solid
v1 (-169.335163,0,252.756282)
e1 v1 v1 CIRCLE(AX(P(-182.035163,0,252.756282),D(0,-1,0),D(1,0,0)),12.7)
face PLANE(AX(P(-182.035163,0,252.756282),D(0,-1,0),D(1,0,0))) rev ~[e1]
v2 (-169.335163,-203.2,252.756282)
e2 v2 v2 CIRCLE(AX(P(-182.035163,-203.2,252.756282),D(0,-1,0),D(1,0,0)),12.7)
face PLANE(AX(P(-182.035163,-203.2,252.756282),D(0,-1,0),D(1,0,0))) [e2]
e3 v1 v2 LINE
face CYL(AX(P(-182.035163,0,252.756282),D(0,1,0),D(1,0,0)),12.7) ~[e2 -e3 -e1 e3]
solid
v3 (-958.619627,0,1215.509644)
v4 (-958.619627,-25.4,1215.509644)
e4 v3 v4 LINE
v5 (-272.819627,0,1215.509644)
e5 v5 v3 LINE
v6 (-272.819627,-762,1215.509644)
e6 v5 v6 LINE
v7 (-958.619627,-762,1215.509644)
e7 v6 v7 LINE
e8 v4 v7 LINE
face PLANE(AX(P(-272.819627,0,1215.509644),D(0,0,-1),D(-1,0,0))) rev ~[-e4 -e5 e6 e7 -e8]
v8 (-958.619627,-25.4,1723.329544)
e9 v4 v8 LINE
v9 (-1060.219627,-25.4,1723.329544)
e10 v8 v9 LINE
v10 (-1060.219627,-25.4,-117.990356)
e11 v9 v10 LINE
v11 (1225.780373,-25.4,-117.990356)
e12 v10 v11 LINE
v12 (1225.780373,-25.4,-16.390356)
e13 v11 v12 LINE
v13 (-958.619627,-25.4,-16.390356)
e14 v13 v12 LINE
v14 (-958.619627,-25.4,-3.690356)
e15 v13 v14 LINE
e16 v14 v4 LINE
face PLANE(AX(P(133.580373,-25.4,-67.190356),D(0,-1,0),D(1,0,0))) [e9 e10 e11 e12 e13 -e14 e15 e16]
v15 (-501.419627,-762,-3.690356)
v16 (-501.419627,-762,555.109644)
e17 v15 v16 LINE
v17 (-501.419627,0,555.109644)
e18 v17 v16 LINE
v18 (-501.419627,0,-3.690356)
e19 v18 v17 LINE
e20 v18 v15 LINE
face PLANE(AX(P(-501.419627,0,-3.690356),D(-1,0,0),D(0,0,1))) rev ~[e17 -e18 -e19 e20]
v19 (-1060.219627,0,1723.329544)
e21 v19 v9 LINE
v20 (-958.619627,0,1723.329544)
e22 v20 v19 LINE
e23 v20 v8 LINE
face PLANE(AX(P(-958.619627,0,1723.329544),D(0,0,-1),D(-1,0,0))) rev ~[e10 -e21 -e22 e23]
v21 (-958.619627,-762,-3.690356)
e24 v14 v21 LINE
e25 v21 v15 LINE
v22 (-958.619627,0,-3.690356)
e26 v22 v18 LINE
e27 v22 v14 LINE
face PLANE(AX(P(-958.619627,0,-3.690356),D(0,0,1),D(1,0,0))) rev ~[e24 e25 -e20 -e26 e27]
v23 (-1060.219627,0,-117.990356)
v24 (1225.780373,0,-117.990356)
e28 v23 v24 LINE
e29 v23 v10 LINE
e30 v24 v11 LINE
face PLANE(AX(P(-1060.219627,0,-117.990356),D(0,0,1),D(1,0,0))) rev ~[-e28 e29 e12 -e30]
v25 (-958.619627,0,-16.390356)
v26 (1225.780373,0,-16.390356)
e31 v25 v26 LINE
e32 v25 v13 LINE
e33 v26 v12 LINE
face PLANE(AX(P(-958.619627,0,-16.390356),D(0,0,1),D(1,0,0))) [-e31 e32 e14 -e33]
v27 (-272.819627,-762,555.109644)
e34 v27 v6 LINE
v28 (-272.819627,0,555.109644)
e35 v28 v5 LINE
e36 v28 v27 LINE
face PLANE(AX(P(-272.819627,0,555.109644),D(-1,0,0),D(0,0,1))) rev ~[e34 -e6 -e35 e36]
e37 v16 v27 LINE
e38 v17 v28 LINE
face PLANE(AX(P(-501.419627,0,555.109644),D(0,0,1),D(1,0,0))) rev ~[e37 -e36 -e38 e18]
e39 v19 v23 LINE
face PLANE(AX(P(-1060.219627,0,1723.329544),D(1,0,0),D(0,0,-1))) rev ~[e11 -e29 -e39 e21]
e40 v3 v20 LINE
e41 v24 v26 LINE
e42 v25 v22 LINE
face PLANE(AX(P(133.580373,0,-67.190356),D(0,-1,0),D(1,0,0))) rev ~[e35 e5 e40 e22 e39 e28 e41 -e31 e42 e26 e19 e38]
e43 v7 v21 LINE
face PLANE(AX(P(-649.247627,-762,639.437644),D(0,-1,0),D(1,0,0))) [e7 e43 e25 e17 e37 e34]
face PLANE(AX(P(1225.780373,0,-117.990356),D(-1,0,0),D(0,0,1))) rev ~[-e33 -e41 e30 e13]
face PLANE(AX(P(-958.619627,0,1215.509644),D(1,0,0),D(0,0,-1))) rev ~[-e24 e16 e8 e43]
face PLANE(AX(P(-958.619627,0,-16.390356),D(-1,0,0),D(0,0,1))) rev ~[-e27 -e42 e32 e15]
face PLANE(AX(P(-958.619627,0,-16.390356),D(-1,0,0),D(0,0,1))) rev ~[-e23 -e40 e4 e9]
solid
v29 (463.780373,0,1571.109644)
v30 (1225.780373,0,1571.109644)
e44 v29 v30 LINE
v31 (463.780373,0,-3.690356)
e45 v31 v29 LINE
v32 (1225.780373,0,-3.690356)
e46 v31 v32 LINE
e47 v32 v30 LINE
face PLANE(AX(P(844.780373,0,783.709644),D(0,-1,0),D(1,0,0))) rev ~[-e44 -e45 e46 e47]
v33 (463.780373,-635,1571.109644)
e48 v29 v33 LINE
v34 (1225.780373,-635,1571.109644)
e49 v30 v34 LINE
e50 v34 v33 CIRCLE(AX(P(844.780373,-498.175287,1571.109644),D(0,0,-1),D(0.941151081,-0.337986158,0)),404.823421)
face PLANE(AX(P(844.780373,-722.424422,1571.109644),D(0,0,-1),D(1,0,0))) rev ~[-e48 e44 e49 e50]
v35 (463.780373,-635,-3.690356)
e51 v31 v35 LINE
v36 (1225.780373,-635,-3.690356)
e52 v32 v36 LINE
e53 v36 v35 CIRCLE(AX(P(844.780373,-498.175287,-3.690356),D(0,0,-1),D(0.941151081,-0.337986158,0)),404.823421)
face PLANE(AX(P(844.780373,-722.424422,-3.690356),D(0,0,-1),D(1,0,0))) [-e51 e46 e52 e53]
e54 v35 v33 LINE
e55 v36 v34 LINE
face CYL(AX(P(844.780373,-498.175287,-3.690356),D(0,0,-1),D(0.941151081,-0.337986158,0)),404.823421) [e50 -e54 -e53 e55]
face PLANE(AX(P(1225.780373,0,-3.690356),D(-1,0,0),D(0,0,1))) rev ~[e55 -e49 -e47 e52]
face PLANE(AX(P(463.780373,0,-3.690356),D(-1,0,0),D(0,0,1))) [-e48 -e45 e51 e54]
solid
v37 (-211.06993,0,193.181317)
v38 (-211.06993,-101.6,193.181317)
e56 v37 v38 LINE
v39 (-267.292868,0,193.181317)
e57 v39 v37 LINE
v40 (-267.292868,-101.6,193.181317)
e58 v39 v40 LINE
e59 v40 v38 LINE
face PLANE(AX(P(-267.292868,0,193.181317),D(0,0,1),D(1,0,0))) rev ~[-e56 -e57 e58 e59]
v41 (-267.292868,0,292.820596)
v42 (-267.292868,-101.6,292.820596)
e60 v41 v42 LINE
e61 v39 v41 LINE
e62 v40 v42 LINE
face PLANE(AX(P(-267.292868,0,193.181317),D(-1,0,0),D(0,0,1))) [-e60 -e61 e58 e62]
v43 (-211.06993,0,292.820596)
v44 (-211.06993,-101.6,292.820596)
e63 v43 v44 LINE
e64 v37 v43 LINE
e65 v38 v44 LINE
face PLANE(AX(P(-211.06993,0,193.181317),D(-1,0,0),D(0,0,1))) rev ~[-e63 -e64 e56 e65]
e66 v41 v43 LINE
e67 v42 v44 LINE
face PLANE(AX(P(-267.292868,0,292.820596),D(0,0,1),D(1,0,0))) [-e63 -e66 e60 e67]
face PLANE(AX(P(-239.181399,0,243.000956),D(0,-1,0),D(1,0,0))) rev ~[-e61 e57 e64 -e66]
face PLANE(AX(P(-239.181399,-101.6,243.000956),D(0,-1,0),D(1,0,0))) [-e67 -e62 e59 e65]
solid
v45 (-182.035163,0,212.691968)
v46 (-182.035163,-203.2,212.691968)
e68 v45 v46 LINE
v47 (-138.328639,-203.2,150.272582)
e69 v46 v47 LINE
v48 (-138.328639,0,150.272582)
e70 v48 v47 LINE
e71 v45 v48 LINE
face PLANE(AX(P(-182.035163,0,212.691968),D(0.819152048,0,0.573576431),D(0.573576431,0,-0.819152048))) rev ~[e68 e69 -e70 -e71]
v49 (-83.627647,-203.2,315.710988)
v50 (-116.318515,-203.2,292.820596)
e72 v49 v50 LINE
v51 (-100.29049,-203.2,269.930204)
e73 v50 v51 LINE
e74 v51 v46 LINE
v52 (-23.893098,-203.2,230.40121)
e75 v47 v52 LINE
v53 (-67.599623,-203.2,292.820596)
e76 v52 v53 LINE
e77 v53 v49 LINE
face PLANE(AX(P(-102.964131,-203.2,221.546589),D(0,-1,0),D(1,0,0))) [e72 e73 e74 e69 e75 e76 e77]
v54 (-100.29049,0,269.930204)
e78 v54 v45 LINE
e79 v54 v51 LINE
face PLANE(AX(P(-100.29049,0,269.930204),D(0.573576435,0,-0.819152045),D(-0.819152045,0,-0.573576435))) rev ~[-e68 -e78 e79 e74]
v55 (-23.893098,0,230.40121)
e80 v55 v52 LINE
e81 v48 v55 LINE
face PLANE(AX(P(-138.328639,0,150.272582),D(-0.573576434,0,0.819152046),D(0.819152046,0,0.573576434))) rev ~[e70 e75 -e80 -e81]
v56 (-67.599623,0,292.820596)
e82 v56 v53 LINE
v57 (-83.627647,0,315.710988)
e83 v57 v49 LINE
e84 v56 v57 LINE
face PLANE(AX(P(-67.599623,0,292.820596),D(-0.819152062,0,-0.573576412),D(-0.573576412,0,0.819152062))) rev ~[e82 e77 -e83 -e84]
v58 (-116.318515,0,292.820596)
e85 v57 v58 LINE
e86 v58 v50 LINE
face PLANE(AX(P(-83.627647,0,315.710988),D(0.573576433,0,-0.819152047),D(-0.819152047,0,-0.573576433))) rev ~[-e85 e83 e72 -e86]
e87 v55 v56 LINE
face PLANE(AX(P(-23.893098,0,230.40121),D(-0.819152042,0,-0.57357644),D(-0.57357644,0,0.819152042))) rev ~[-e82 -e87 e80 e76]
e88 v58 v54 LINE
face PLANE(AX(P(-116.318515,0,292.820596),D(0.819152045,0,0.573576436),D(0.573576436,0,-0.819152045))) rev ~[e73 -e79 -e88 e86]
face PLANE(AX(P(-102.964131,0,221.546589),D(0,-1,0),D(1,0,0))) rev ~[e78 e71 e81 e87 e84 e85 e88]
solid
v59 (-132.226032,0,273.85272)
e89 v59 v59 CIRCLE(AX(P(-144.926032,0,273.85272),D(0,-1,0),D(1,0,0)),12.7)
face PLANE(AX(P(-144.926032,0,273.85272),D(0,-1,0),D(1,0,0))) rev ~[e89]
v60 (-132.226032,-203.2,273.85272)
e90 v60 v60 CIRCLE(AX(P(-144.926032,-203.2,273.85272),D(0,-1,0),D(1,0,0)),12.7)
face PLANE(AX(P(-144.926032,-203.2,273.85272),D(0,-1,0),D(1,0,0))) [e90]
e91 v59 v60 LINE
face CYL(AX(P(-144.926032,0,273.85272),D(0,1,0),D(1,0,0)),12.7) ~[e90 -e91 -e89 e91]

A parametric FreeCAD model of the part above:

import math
import FreeCAD as App
import Part
import Sketcher
from FreeCAD import Vector
Q = App.Units.Quantity

doc = App.newDocument("Part")
body = doc.addObject("PartDesign::Body", "Body")

# Sketch on XZ plane
sketch1 = body.newObject("Sketcher::SketchObject", "Sketch")
sketch1.AttachmentSupport = (doc.getObject("XZ_Plane"), [""])
sketch1.MapMode = "FlatFace"
sketch1.addGeometry(Part.LineSegment(Vector(-959, 1216, 0), Vector(-959, -4, 0)), False)
sketch1.addGeometry(Part.LineSegment(Vector(-959, -4, 0), Vector(-501, -4, 0)), False)
sketch1.addGeometry(Part.LineSegment(Vector(-501, -4, 0), Vector(-501, 555, 0)), False)
sketch1.addGeometry(Part.LineSegment(Vector(-501, 555, 0), Vector(-273, 555, 0)), False)
sketch1.addGeometry(Part.LineSegment(Vector(-273, 555, 0), Vector(-273, 1216, 0)), False)
sketch1.addGeometry(Part.LineSegment(Vector(-273, 1216, 0), Vector(-959, 1216, 0)), False)
sketch1.addConstraint(Sketcher.Constraint("Coincident", 0, 2, 1, 1))
sketch1.addConstraint(Sketcher.Constraint("Coincident", 1, 2, 2, 1))
sketch1.addConstraint(Sketcher.Constraint("Coincident", 2, 2, 3, 1))
sketch1.addConstraint(Sketcher.Constraint("Coincident", 3, 2, 4, 1))
sketch1.addConstraint(Sketcher.Constraint("Coincident", 4, 2, 5, 1))
sketch1.addConstraint(Sketcher.Constraint("Coincident", 5, 2, 0, 1))
sketch1.addConstraint(Sketcher.Constraint("Vertical", 0))
sketch1.addConstraint(Sketcher.Constraint("Horizontal", 1))
sketch1.addConstraint(Sketcher.Constraint("Vertical", 2))
sketch1.addConstraint(Sketcher.Constraint("Horizontal", 3))
sketch1.addConstraint(Sketcher.Constraint("Vertical", 4))
sketch1.addConstraint(Sketcher.Constraint("Horizontal", 5))
sketch1.addConstraint(Sketcher.Constraint("DistanceX", 1, 1, 1, 2, Q("18 in")))
sketch1.addConstraint(Sketcher.Constraint("DistanceX", 3, 1, 3, 2, Q("9 in")))
sketch1.addConstraint(Sketcher.Constraint("DistanceY", 0, 2, 0, 1, Q("48 in")))
sketch1.addConstraint(Sketcher.Constraint("DistanceY", 2, 1, 2, 2, Q("22 in")))
sketch1.addConstraint(Sketcher.Constraint("DistanceX", 0, 2, -1, 1, 958.619627))
sketch1.addConstraint(Sketcher.Constraint("DistanceY", 0, 2, -1, 1, 3.690356))
pad1 = body.newObject("PartDesign::Pad", "Pad")
pad1.Profile = sketch1
pad1.Length = Q("30 in")

# Sketch on XZ plane
sketch2 = body.newObject("Sketcher::SketchObject", "Sketch001")
sketch2.AttachmentSupport = (doc.getObject("XZ_Plane"), [""])
sketch2.MapMode = "FlatFace"
sketch2.addGeometry(Part.LineSegment(Vector(1226, -118, 0), Vector(1226, -16, 0)), False)
sketch2.addGeometry(Part.LineSegment(Vector(1226, -16, 0), Vector(-959, -16, 0)), False)
sketch2.addGeometry(Part.LineSegment(Vector(-959, -16, 0), Vector(-959, 1723, 0)), False)
sketch2.addGeometry(Part.LineSegment(Vector(-959, 1723, 0), Vector(-1060, 1723, 0)), False)
sketch2.addGeometry(Part.LineSegment(Vector(-1060, 1723, 0), Vector(-1060, -118, 0)), False)
sketch2.addGeometry(Part.LineSegment(Vector(-1060, -118, 0), Vector(1226, -118, 0)), False)
sketch2.addConstraint(Sketcher.Constraint("Coincident", 0, 2, 1, 1))
sketch2.addConstraint(Sketcher.Constraint("Coincident", 1, 2, 2, 1))
sketch2.addConstraint(Sketcher.Constraint("Coincident", 2, 2, 3, 1))
sketch2.addConstraint(Sketcher.Constraint("Coincident", 3, 2, 4, 1))
sketch2.addConstraint(Sketcher.Constraint("Coincident", 4, 2, 5, 1))
sketch2.addConstraint(Sketcher.Constraint("Coincident", 5, 2, 0, 1))
sketch2.addConstraint(Sketcher.Constraint("Vertical", 0))
sketch2.addConstraint(Sketcher.Constraint("Horizontal", 1))
sketch2.addConstraint(Sketcher.Constraint("Vertical", 2))
sketch2.addConstraint(Sketcher.Constraint("Horizontal", 3))
sketch2.addConstraint(Sketcher.Constraint("Vertical", 4))
sketch2.addConstraint(Sketcher.Constraint("Horizontal", 5))
sketch2.addConstraint(Sketcher.Constraint("Equal", 3, 0))
sketch2.addConstraint(Sketcher.Constraint("DistanceX", 1, 2, 1, 1, Q("86 in")))
sketch2.addConstraint(Sketcher.Constraint("DistanceX", 3, 2, 3, 1, Q("4 in")))
sketch2.addConstraint(Sketcher.Constraint("DistanceY", 2, 1, 2, 2, 1739.7199))
sketch2.addConstraint(Sketcher.Constraint("DistanceX", -1, 1, 0, 2, 1225.780373))
sketch2.addConstraint(Sketcher.Constraint("DistanceY", 0, 2, -1, 1, 16.390356))
pad2 = body.newObject("PartDesign::Pad", "Pad001")
pad2.Profile = sketch2
pad2.Length = Q("1 in")
body2 = doc.addObject("PartDesign::Body", "Body001")

# Sketch on XZ plane
sketch3 = body2.newObject("Sketcher::SketchObject", "Sketch002")
sketch3.AttachmentSupport = (doc.getObject("XZ_Plane001"), [""])
sketch3.MapMode = "FlatFace"
sketch3.addGeometry(Part.LineSegment(Vector(464, 1571, 0), Vector(464, -4, 0)), False)
sketch3.addGeometry(Part.LineSegment(Vector(464, -4, 0), Vector(1226, -4, 0)), False)
sketch3.addGeometry(Part.LineSegment(Vector(1226, -4, 0), Vector(1226, 1571, 0)), False)
sketch3.addGeometry(Part.LineSegment(Vector(1226, 1571, 0), Vector(464, 1571, 0)), False)
sketch3.addConstraint(Sketcher.Constraint("Coincident", 0, 2, 1, 1))
sketch3.addConstraint(Sketcher.Constraint("Coincident", 1, 2, 2, 1))
sketch3.addConstraint(Sketcher.Constraint("Coincident", 2, 2, 3, 1))
sketch3.addConstraint(Sketcher.Constraint("Coincident", 3, 2, 0, 1))
sketch3.addConstraint(Sketcher.Constraint("Vertical", 0))
sketch3.addConstraint(Sketcher.Constraint("Horizontal", 1))
sketch3.addConstraint(Sketcher.Constraint("Vertical", 2))
sketch3.addConstraint(Sketcher.Constraint("Horizontal", 3))
sketch3.addConstraint(Sketcher.Constraint("DistanceX", 1, 1, 1, 2, Q("30 in")))
sketch3.addConstraint(Sketcher.Constraint("DistanceY", 0, 2, 0, 1, Q("62 in")))
sketch3.addConstraint(Sketcher.Constraint("DistanceX", -1, 1, 0, 2, 463.780373))
sketch3.addConstraint(Sketcher.Constraint("DistanceY", 0, 2, -1, 1, 3.690356))
pad3 = body2.newObject("PartDesign::Pad", "Pad002")
pad3.Profile = sketch3
pad3.Length = Q("25 in")

# Sketch on XY plane
sketch4 = body2.newObject("Sketcher::SketchObject", "Sketch003")
sketch4.AttachmentSupport = (doc.getObject("XY_Plane001"), [""])
sketch4.MapMode = "FlatFace"
sketch4.AttachmentOffset = App.Placement(Vector(0, 0, -3.690356), App.Rotation())
sketch4.addGeometry(Part.LineSegment(Vector(464, -635, 0), Vector(1226, -635, 0)), False)
sketch4.addGeometry(Part.ArcOfCircle(Part.Circle(Vector(845, -498, 0), Vector(0, 0, 1), 405), math.radians(-160), math.radians(-20)), False)
sketch4.addConstraint(Sketcher.Constraint("Coincident", 0, 1, 1, 1))
sketch4.addConstraint(Sketcher.Constraint("Coincident", 1, 2, 0, 2))
sketch4.addConstraint(Sketcher.Constraint("Horizontal", 0))
sketch4.addConstraint(Sketcher.Constraint("DistanceX", 0, 1, 0, 2, Q("30 in")))
sketch4.addConstraint(Sketcher.Constraint("DistanceY", 0, 1, -1, 1, Q("25 in")))
sketch4.addConstraint(Sketcher.Constraint("Radius", 1, 404.823421))
sketch4.addConstraint(Sketcher.Constraint("DistanceX", -1, 1, 1, 3, 844.780373))
pad4 = body2.newObject("PartDesign::Pad", "Pad003")
pad4.Profile = sketch4
pad4.Length = Q("62 in")
body3 = doc.addObject("PartDesign::Body", "Body002")
body3.AllowCompound = True

# Sketch on XZ plane
sketch5 = body3.newObject("Sketcher::SketchObject", "Sketch004")
sketch5.AttachmentSupport = (doc.getObject("XZ_Plane002"), [""])
sketch5.MapMode = "FlatFace"
sketch5.addGeometry(Part.LineSegment(Vector(-182, 213, 0), Vector(-138, 150, 0)), False)
sketch5.addGeometry(Part.LineSegment(Vector(-138, 150, 0), Vector(-24, 230, 0)), False)
sketch5.addGeometry(Part.LineSegment(Vector(-24, 230, 0), Vector(-68, 293, 0)), False)
sketch5.addGeometry(Part.LineSegment(Vector(-68, 293, 0), Vector(-84, 316, 0)), False)
sketch5.addGeometry(Part.LineSegment(Vector(-84, 316, 0), Vector(-116, 293, 0)), False)
sketch5.addGeometry(Part.LineSegment(Vector(-116, 293, 0), Vector(-100, 270, 0)), False)
sketch5.addGeometry(Part.LineSegment(Vector(-100, 270, 0), Vector(-182, 213, 0)), False)
sketch5.addGeometry(Part.Circle(Vector(-182, 253, 0), Vector(0, 0, 1), 13), False)
sketch5.addGeometry(Part.Circle(Vector(-145, 274, 0), Vector(0, 0, 1), 13), False)
sketch5.addConstraint(Sketcher.Constraint("Coincident", 0, 2, 1, 1))
sketch5.addConstraint(Sketcher.Constraint("Coincident", 1, 2, 2, 1))
sketch5.addConstraint(Sketcher.Constraint("Coincident", 2, 2, 3, 1))
sketch5.addConstraint(Sketcher.Constraint("Coincident", 3, 2, 4, 1))
sketch5.addConstraint(Sketcher.Constraint("Coincident", 4, 2, 5, 1))
sketch5.addConstraint(Sketcher.Constraint("Coincident", 5, 2, 6, 1))
sketch5.addConstraint(Sketcher.Constraint("Coincident", 6, 2, 0, 1))
sketch5.addConstraint(Sketcher.Constraint("Equal", 7, 8))
sketch5.addConstraint(Sketcher.Constraint("Perpendicular", 0, 1))
sketch5.addConstraint(Sketcher.Constraint("Perpendicular", 1, 2))
sketch5.addConstraint(Sketcher.Constraint("Parallel", 2, 3))
sketch5.addConstraint(Sketcher.Constraint("Perpendicular", 3, 4))
sketch5.addConstraint(Sketcher.Constraint("Perpendicular", 4, 5))
sketch5.addConstraint(Sketcher.Constraint("Perpendicular", 5, 6))
sketch5.addConstraint(Sketcher.Constraint("Horizontal", 2, 2, 4, 2))
sketch5.addConstraint(Sketcher.Constraint("Vertical", 7, 3, 6, 2))
sketch5.addConstraint(Sketcher.Constraint("Equal", 0, 2))
sketch5.addConstraint(Sketcher.Constraint("Diameter", 7, Q("1 in")))
sketch5.addConstraint(Sketcher.Constraint("Distance", 0, Q("3 in")))
sketch5.addConstraint(Sketcher.Constraint("Angle", 0, Q("-55 deg")))
sketch5.addConstraint(Sketcher.Constraint("Distance", 1, Q("5.5 in")))
sketch5.addConstraint(Sketcher.Constraint("DistanceY", 0, 2, 7, 3, 102.4837))
sketch5.addConstraint(Sketcher.Constraint("Distance", 3, 27.944008))
sketch5.addConstraint(Sketcher.Constraint("DistanceY", -1, 1, 7, 3, 252.756282))
sketch5.addConstraint(Sketcher.Constraint("DistanceX", 8, 3, -1, 1, 144.926032))
sketch5.addConstraint(Sketcher.Constraint("DistanceY", -1, 1, 8, 3, 273.85272))
sketch5.addConstraint(Sketcher.Constraint("DistanceX", 0, 2, -1, 1, 138.328639))
pad5 = body3.newObject("PartDesign::Pad", "Pad004")
pad5.Profile = sketch5
pad5.Length = Q("8 in")
body4 = doc.addObject("PartDesign::Body", "Body003")

# Sketch on XZ plane
sketch6 = body4.newObject("Sketcher::SketchObject", "Sketch005")
sketch6.AttachmentSupport = (doc.getObject("XZ_Plane003"), [""])
sketch6.MapMode = "FlatFace"
sketch6.addGeometry(Part.LineSegment(Vector(-267, 293, 0), Vector(-267, 193, 0)), False)
sketch6.addGeometry(Part.LineSegment(Vector(-267, 193, 0), Vector(-211, 193, 0)), False)
sketch6.addGeometry(Part.LineSegment(Vector(-211, 193, 0), Vector(-211, 293, 0)), False)
sketch6.addGeometry(Part.LineSegment(Vector(-211, 293, 0), Vector(-267, 293, 0)), False)
sketch6.addConstraint(Sketcher.Constraint("Coincident", 0, 2, 1, 1))
sketch6.addConstraint(Sketcher.Constraint("Coincident", 1, 2, 2, 1))
sketch6.addConstraint(Sketcher.Constraint("Coincident", 2, 2, 3, 1))
sketch6.addConstraint(Sketcher.Constraint("Coincident", 3, 2, 0, 1))
sketch6.addConstraint(Sketcher.Constraint("Vertical", 0))
sketch6.addConstraint(Sketcher.Constraint("Horizontal", 1))
sketch6.addConstraint(Sketcher.Constraint("Vertical", 2))
sketch6.addConstraint(Sketcher.Constraint("Horizontal", 3))
sketch6.addConstraint(Sketcher.Constraint("DistanceX", 1, 1, 1, 2, 56.222939))
sketch6.addConstraint(Sketcher.Constraint("DistanceY", 0, 2, 0, 1, 99.639279))
sketch6.addConstraint(Sketcher.Constraint("DistanceX", 0, 2, -1, 1, 267.292868))
sketch6.addConstraint(Sketcher.Constraint("DistanceY", -1, 1, 0, 2, 193.181317))
pad6 = body4.newObject("PartDesign::Pad", "Pad005")
pad6.Profile = sketch6
pad6.Length = Q("4 in")

doc.recompute()
